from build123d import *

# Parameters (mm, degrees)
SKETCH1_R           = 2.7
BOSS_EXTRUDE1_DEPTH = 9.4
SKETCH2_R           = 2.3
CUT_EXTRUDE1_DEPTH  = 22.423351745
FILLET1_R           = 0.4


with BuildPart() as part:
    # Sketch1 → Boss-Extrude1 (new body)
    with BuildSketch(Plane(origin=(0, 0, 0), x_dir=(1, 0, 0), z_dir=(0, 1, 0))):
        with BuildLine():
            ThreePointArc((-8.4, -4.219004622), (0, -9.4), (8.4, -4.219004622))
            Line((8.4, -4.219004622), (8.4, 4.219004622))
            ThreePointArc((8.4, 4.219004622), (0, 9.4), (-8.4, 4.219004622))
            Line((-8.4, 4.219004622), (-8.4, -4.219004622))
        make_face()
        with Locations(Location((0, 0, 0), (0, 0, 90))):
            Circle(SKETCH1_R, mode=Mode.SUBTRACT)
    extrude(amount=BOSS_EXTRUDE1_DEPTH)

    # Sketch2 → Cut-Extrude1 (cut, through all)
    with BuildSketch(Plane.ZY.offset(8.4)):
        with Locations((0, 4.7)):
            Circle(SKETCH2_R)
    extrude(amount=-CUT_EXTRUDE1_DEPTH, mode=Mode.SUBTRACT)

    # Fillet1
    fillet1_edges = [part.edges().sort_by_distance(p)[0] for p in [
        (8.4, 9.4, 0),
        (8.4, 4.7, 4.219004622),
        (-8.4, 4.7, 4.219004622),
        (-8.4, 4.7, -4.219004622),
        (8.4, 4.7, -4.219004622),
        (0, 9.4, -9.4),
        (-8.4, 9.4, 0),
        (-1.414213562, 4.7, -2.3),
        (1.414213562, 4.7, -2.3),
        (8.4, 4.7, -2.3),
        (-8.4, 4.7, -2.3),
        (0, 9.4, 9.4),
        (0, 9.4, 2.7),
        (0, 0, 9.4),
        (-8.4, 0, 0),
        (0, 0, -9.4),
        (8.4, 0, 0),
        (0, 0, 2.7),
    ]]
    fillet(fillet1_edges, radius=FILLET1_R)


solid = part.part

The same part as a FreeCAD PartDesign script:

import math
import FreeCAD as App
import Part
import Sketcher

V = App.Vector
Q = App.Units.Quantity

doc = App.newDocument("Part")
body = doc.addObject("PartDesign::Body", "Body")

# Sketch on XZ plane
sketch1 = body.newObject("Sketcher::SketchObject", "Sketch")
sketch1.AttachmentSupport = (doc.getObject("XZ_Plane"), [""])
sketch1.MapMode = "FlatFace"
sketch1.addGeometry([
    Part.ArcOfCircle(Part.Circle(V(0, 0, 0), V(0, 0, 1), 9.4), math.radians(27), math.radians(153)),  # 0
    Part.LineSegment(V(8.4, 4.2, 0), V(8.4, -4.2, 0)),  # 1
    Part.ArcOfCircle(Part.Circle(V(0, 0, 0), V(0, 0, 1), 9.4), math.radians(-153), math.radians(-27)),  # 2
    Part.LineSegment(V(-8.4, -4.2, 0), V(-8.4, 4.2, 0)),  # 3
    Part.Circle(V(0, 0, 0), V(0, 0, 1), 2.7),  # 4
], False)
sketch1.addConstraint([
    Sketcher.Constraint("Coincident", 0, 1, 1, 1),
    Sketcher.Constraint("Coincident", 1, 2, 2, 2),
    Sketcher.Constraint("Coincident", 2, 1, 3, 1),
    Sketcher.Constraint("Coincident", 3, 2, 0, 2),
    Sketcher.Constraint("Vertical", 1),
    Sketcher.Constraint("Vertical", 3),
    Sketcher.Constraint("Coincident", 0, 3, -1, 1),
    Sketcher.Constraint("Coincident", 2, 3, -1, 1),
    Sketcher.Constraint("Coincident", 4, 3, -1, 1),
    Sketcher.Constraint("Equal", 0, 2),
    Sketcher.Constraint("Horizontal", 1, 2, 2, 1),
    Sketcher.Constraint("Diameter", 4, Q("5.4 mm")),
    Sketcher.Constraint("Radius", 0, Q("9.4 mm")),
    Sketcher.Constraint("DistanceX", -1, 1, 0, 1, Q("8.4 mm")),
])
pad1 = body.newObject("PartDesign::Pad", "Pad")
pad1.Profile = sketch1
pad1.Length = 9.4
pad1.Reversed = True

# Sketch on YZ plane
sketch2 = body.newObject("Sketcher::SketchObject", "Sketch001")
sketch2.AttachmentSupport = (doc.getObject("YZ_Plane"), [""])
sketch2.MapMode = "FlatFace"
sketch2.AttachmentOffset = App.Placement(V(0, 0, -8.4), App.Rotation())
sketch2.addGeometry(Part.Circle(V(4.7, 0, 0), V(0, 0, 1), 2.3), False)
sketch2.addConstraint([
    Sketcher.Constraint("PointOnObject", 0, 3, -1),
    Sketcher.Constraint("Diameter", 0, Q("4.6 mm")),
    Sketcher.Constraint("DistanceX", -1, 1, 0, 3, Q("4.7 mm")),
])
pocket1 = body.newObject("PartDesign::Pocket", "Pocket")
pocket1.Profile = sketch2
pocket1.Type = "ThroughAll"
pocket1.Reversed = True
doc.recompute()

fillet = body.newObject("PartDesign::Fillet", "Fillet")
fillet.Base = (pocket1, ["Edge1"])
fillet.UseAllEdges = True
fillet.Radius = 0.4

doc.recompute()
